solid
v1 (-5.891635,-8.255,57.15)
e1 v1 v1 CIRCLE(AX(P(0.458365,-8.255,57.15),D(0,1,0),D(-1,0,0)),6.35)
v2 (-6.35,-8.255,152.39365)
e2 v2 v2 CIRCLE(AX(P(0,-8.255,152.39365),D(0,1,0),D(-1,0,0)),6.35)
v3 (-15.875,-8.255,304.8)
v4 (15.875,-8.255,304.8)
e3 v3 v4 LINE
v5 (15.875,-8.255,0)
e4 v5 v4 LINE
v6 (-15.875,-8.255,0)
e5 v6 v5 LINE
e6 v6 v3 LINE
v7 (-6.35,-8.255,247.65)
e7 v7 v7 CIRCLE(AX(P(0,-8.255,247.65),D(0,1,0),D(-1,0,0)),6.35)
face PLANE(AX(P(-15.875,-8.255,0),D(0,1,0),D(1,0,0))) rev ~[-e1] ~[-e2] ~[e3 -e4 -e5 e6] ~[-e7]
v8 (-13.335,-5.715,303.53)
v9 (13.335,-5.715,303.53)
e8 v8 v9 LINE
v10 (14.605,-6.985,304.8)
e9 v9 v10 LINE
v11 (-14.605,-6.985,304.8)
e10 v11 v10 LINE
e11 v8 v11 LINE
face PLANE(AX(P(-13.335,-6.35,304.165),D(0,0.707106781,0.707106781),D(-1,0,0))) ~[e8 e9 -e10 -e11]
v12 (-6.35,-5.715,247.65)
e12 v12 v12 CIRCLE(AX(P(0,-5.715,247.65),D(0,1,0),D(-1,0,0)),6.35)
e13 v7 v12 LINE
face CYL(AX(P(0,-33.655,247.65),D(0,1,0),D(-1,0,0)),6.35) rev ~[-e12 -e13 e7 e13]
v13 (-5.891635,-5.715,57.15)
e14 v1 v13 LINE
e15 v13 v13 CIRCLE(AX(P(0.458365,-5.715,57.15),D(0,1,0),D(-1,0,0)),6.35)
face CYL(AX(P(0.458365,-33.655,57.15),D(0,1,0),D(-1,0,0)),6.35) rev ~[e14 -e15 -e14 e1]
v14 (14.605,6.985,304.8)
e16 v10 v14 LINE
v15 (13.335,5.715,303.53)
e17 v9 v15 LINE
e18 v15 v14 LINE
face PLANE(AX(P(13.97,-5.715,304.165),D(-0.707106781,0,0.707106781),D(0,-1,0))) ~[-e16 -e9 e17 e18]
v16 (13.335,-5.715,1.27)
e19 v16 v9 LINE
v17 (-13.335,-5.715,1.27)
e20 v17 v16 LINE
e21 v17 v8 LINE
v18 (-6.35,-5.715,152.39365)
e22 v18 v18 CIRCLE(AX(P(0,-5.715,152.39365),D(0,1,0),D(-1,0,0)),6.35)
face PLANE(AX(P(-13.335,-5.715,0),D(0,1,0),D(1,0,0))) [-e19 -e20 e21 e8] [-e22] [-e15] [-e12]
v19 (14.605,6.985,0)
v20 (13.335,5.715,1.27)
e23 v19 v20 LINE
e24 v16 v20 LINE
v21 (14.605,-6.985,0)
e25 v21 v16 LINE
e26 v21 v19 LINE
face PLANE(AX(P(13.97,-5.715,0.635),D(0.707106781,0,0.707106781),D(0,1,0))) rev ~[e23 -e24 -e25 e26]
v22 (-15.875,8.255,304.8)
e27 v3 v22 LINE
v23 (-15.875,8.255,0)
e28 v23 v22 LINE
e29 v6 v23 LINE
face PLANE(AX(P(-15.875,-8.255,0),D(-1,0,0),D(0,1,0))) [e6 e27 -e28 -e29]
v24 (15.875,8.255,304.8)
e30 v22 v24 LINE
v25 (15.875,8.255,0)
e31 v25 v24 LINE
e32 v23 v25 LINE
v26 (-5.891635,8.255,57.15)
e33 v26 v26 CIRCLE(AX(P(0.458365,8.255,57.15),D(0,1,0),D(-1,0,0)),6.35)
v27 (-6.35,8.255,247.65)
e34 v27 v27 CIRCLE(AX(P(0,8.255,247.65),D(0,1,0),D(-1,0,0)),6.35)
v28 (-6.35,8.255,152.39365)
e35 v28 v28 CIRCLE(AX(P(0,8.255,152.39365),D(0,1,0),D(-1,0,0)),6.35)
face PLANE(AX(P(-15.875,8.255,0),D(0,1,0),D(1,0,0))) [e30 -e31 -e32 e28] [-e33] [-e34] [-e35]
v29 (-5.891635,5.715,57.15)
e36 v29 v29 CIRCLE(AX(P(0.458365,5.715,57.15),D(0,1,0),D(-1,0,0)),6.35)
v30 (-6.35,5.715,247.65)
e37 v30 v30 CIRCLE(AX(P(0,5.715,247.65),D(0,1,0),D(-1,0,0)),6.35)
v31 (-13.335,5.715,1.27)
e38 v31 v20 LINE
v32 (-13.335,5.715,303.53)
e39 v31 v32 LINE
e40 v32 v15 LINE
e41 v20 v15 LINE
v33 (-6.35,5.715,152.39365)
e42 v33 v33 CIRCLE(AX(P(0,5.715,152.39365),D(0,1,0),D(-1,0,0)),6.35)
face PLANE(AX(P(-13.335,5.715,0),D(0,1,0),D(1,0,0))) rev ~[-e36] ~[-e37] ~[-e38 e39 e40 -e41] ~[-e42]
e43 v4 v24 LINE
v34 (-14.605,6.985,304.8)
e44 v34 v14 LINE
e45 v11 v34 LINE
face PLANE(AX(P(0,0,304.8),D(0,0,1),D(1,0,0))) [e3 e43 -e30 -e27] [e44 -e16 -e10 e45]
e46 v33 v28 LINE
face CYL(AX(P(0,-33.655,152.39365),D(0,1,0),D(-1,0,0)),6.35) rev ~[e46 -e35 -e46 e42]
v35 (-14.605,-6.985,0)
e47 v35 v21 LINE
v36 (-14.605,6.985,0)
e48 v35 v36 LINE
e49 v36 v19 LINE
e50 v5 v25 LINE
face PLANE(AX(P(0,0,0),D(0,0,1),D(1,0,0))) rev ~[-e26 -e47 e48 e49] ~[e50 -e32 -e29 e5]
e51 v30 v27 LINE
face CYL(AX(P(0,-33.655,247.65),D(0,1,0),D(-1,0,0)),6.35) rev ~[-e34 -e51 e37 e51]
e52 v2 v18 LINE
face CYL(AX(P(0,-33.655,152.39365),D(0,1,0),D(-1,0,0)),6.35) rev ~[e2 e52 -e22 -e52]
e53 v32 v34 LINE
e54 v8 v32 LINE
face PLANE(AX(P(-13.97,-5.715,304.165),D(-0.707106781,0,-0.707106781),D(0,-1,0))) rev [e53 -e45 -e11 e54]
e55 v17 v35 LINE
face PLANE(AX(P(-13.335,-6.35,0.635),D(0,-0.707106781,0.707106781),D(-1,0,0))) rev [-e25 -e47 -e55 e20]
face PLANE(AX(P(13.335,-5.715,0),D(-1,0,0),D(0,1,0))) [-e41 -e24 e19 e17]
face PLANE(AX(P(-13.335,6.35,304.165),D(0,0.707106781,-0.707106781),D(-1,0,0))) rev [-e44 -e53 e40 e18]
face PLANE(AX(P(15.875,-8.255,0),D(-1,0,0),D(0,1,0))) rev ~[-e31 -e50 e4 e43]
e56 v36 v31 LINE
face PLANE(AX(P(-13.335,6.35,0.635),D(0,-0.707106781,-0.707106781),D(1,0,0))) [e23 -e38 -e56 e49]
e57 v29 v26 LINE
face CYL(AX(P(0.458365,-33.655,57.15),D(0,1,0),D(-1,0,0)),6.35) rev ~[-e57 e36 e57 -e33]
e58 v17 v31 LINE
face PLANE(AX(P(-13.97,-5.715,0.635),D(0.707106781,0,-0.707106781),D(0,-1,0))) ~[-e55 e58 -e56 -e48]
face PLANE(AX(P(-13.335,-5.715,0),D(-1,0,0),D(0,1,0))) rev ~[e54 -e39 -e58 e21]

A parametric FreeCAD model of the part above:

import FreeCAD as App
import Part
import Sketcher
Q = App.Units.Quantity


def edges_at(feature, points):
    """Names of the edges that pass closest to the given points."""
    edges = feature.Shape.Edges
    near = lambda p: min(range(len(edges)), key=lambda i: edges[i].distToShape(Part.Vertex(*p))[0])
    return sorted({f"Edge{near(p) + 1}" for p in points})


def add_polygon(sketch, points):
    """Adds a closed chain of lines whose ends are joined by coincident constraints."""
    first, n = sketch.GeometryCount, len(points)
    for a, b in zip(points, points[1:] + points[:1]):
        sketch.addGeometry(Part.LineSegment(App.Vector(*a, 0), App.Vector(*b, 0)), False)
    for i in range(n):
        sketch.addConstraint(Sketcher.Constraint("Coincident", first + i, 2, first + (i + 1) % n, 1))

doc = App.newDocument("Part")
body = doc.addObject("PartDesign::Body", "Body")

sketch1 = body.newObject("Sketcher::SketchObject", "Sketch")
sketch1.AttachmentSupport = (doc.getObject("XY_Plane"), [""])
sketch1.MapMode = "FlatFace"
add_polygon(sketch1, [(-16, 8), (-16, -8), (16, -8), (16, 8)])
add_polygon(sketch1, [(13, -6), (-13, -6), (-13, 6), (13, 6)])
sketch1.addConstraint([
    Sketcher.Constraint("Vertical", 0),
    Sketcher.Constraint("Horizontal", 1),
    Sketcher.Constraint("Vertical", 2),
    Sketcher.Constraint("Horizontal", 3),
    Sketcher.Constraint("Horizontal", 4),
    Sketcher.Constraint("Vertical", 5),
    Sketcher.Constraint("Horizontal", 6),
    Sketcher.Constraint("Vertical", 7),
    Sketcher.Constraint("Symmetric", 0, 2, 2, 2, -1, 1),
    Sketcher.Constraint("Symmetric", 4, 2, 6, 2, -1, 1),
    Sketcher.Constraint("DistanceX", 1, 1, 1, 2, Q("1.25 in")),
    Sketcher.Constraint("DistanceX", 4, 2, 4, 1, Q("1.05 in")),
    Sketcher.Constraint("DistanceY", 0, 2, 0, 1, Q("0.65 in")),
    Sketcher.Constraint("DistanceY", 5, 1, 5, 2, Q("0.45 in")),
])
pad1 = body.newObject("PartDesign::Pad", "Pad")
pad1.Profile = sketch1
pad1.Length = Q("12 in")
doc.recompute()

chamfer = body.newObject("PartDesign::Chamfer", "Chamfer")
chamfer.Base = (pad1, edges_at(pad1, [
    (0, 5.715, 304.8),
    (-13.335, 0, 304.8),
    (0, -5.715, 304.8),
    (13.335, 0, 304.8),
]))
chamfer.Size = Q("0.05 in")
doc.recompute()

chamfer2 = body.newObject("PartDesign::Chamfer", "Chamfer001")
chamfer2.Base = (chamfer, edges_at(chamfer, [
    (13.335, 0, 0),
    (0, 5.715, 0),
    (-13.335, 0, 0),
    (0, -5.715, 0),
]))
chamfer2.Size = Q("0.05 in")

sketch2 = body.newObject("Sketcher::SketchObject", "Sketch001")
sketch2.AttachmentSupport = (doc.getObject("XZ_Plane"), [""])
sketch2.MapMode = "FlatFace"
sketch2.AttachmentOffset = App.Placement(App.Vector(0, 0, 0.325 * 25.4), App.Rotation())
sketch2.addGeometry([
    Part.Circle(App.Vector(0, 152, 0), App.Vector(0, 0, 1), 6),
    Part.Circle(App.Vector(0, 248, 0), App.Vector(0, 0, 1), 6),
    Part.Circle(App.Vector(0, 57, 0), App.Vector(0, 0, 1), 6),
], False)
sketch2.addConstraint([
    Sketcher.Constraint("Equal", 0, 1),
    Sketcher.Constraint("Equal", 1, 2),
    Sketcher.Constraint("PointOnObject", 0, 3, -2),
    Sketcher.Constraint("PointOnObject", 1, 3, -2),
    Sketcher.Constraint("Diameter", 0, Q("0.5 in")),
    Sketcher.Constraint("DistanceY", 2, 3, 1, 3, Q("7.5 in")),
    Sketcher.Constraint("DistanceY", -1, 1, 1, 3, Q("9.75 in")),
    Sketcher.Constraint("DistanceY", -1, 1, 0, 3, Q("152.39365 mm")),
    Sketcher.Constraint("DistanceX", -1, 1, 2, 3, Q("0.458365 mm")),
])
doc.recompute()
hole = body.newObject("PartDesign::Hole", "Hole")
hole.Profile = sketch2
hole.ThreadType = "None"
hole.Diameter = Q("0.5 in")
hole.DepthType = "Dimension"
hole.Depth = Q("1 in")
hole.DrillPoint = "Flat"

doc.recompute()
